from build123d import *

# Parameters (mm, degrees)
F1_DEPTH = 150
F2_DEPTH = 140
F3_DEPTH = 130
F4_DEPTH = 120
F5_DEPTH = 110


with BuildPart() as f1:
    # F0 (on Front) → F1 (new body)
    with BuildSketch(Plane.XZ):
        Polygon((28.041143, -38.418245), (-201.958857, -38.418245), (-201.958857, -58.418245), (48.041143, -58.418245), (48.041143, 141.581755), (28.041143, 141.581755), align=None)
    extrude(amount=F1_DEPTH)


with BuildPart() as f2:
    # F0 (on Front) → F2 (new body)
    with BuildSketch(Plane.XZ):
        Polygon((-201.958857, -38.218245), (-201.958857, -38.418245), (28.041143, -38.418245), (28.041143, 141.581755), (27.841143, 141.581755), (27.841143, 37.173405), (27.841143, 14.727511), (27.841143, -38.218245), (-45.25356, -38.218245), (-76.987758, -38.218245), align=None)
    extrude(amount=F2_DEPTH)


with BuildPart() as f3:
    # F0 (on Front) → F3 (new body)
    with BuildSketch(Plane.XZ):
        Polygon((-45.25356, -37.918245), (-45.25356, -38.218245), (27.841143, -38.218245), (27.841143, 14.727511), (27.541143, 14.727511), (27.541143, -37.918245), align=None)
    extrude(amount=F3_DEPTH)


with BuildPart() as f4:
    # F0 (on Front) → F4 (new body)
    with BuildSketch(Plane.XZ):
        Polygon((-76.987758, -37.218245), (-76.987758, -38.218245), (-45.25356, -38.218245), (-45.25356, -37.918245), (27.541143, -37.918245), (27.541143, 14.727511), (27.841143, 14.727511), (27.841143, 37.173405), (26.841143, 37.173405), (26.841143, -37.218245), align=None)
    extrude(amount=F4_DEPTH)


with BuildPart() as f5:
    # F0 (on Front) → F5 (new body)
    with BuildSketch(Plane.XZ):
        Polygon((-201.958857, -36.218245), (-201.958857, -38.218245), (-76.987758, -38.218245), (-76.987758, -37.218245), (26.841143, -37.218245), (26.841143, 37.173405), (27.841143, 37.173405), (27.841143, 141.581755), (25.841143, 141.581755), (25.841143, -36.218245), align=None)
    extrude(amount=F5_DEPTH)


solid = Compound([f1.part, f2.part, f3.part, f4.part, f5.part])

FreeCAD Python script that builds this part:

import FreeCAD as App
import Part
import Sketcher

V = App.Vector


def add_polygon(sketch, points):
    """Adds a closed chain of lines whose ends are joined by coincident constraints."""
    first, n = sketch.GeometryCount, len(points)
    for a, b in zip(points, points[1:] + points[:1]):
        sketch.addGeometry(Part.LineSegment(App.Vector(*a, 0), App.Vector(*b, 0)), False)
    for i in range(n):
        sketch.addConstraint(Sketcher.Constraint("Coincident", first + i, 2, first + (i + 1) % n, 1))

doc = App.newDocument("Part")
params = doc.addObject("Spreadsheet::Sheet", "Params")
for row, (alias, value) in enumerate([
    ("sketch1_width", "230 mm"),
    ("sketch1_width2", "250 mm"),
    ("sketch1_height", "200 mm"),
    ("pad1_length", "150 mm"),
    ("sketch2_width", "230 mm"),
    ("sketch2_height", "180 mm"),
    ("sketch2_width2", "0.2 mm"),
    ("pad2_length", "140 mm"),
    ("sketch3_width", "0.3 mm"),
    ("pad3_length", "130 mm"),
    ("sketch4_width", "1 mm"),
    ("sketch4_width2", "0.3 mm"),
    ("pad4_length", "120 mm"),
    ("sketch5_width", "1 mm"),
    ("sketch5_width2", "2 mm"),
    ("sketch5_width3", "227.8 mm"),
    ("sketch5_height", "177.8 mm"),
    ("pad5_length", "110 mm"),
], start=1):
    params.set(f"A{row}", alias)
    params.set(f"B{row}", "=" + value)
    params.setAlias(f"B{row}", alias)

body = doc.addObject("PartDesign::Body", "Body")

sketch1 = body.newObject("Sketcher::SketchObject", "Sketch")
sketch1.AttachmentSupport = (doc.getObject("XZ_Plane"), [""])
sketch1.MapMode = "FlatFace"
add_polygon(sketch1, [(28, -38), (-202, -38), (-202, -58), (48, -58), (48, 142), (28, 142)])
sketch1.addConstraint([
    Sketcher.Constraint("Horizontal", 0),
    Sketcher.Constraint("Vertical", 1),
    Sketcher.Constraint("Horizontal", 2),
    Sketcher.Constraint("Vertical", 3),
    Sketcher.Constraint("Horizontal", 4),
    Sketcher.Constraint("Vertical", 5),
    Sketcher.Constraint("Equal", 4, 1),
    Sketcher.Constraint("DistanceX", 0, 2, 0, 1, 230.0),
    Sketcher.Constraint("DistanceX", 2, 1, 2, 2, 250.0),
    Sketcher.Constraint("DistanceY", 3, 1, 3, 2, 200.0),
    Sketcher.Constraint("DistanceX", 0, 2, -1, 1, 201.958857),
    Sketcher.Constraint("DistanceY", 0, 2, -1, 1, 38.418245),
])
sketch1.setExpression("Constraints[13]", "Params.sketch1_width")
sketch1.setExpression("Constraints[14]", "Params.sketch1_width2")
sketch1.setExpression("Constraints[15]", "Params.sketch1_height")
pad1 = body.newObject("PartDesign::Pad", "Pad")
pad1.Profile = sketch1
pad1.setExpression("Length", "Params.pad1_length")
body2 = doc.addObject("PartDesign::Body", "Body001")

sketch2 = body2.newObject("Sketcher::SketchObject", "Sketch001")
sketch2.AttachmentSupport = (doc.getObject("XZ_Plane001"), [""])
sketch2.MapMode = "FlatFace"
add_polygon(sketch2, [(-201.96, -38.22), (-201.96, -38.42), (28.04, -38.42), (28.04, 141.58), (27.84, 141.58), (27.84, -38.22)])
sketch2.addConstraint([
    Sketcher.Constraint("Vertical", 0),
    Sketcher.Constraint("Horizontal", 1),
    Sketcher.Constraint("Vertical", 2),
    Sketcher.Constraint("Horizontal", 3),
    Sketcher.Constraint("Vertical", 4),
    Sketcher.Constraint("Horizontal", 5),
    Sketcher.Constraint("Equal", 3, 0),
    Sketcher.Constraint("DistanceX", 1, 1, 1, 2, 230.0),
    Sketcher.Constraint("DistanceY", 2, 1, 2, 2, 180.0),
    Sketcher.Constraint("DistanceX", 3, 2, 3, 1, 0.2),
    Sketcher.Constraint("DistanceX", 0, 2, -1, 1, 201.958857),
    Sketcher.Constraint("DistanceY", 0, 2, -1, 1, 38.418245),
])
sketch2.setExpression("Constraints[13]", "Params.sketch2_width")
sketch2.setExpression("Constraints[14]", "Params.sketch2_height")
sketch2.setExpression("Constraints[15]", "Params.sketch2_width2")
pad2 = body2.newObject("PartDesign::Pad", "Pad001")
pad2.Profile = sketch2
pad2.setExpression("Length", "Params.pad2_length")
body3 = doc.addObject("PartDesign::Body", "Body002")

sketch3 = body3.newObject("Sketcher::SketchObject", "Sketch002")
sketch3.AttachmentSupport = (doc.getObject("XZ_Plane002"), [""])
sketch3.MapMode = "FlatFace"
add_polygon(sketch3, [(-45.25, -37.92), (-45.25, -38.22), (27.84, -38.22), (27.84, 14.73), (27.54, 14.73), (27.54, -37.92)])
sketch3.addConstraint([
    Sketcher.Constraint("Vertical", 0),
    Sketcher.Constraint("Horizontal", 1),
    Sketcher.Constraint("Vertical", 2),
    Sketcher.Constraint("Horizontal", 3),
    Sketcher.Constraint("Vertical", 4),
    Sketcher.Constraint("Horizontal", 5),
    Sketcher.Constraint("Equal", 3, 0),
    Sketcher.Constraint("DistanceX", 3, 2, 3, 1, 0.3),
    Sketcher.Constraint("DistanceX", 1, 1, 1, 2, 73.094703),
    Sketcher.Constraint("DistanceY", 2, 1, 2, 2, 52.945756),
    Sketcher.Constraint("DistanceX", 0, 2, -1, 1, 45.25356),
    Sketcher.Constraint("DistanceY", -1, 1, 2, 2, 14.727511),
])
sketch3.setExpression("Constraints[13]", "Params.sketch3_width")
pad3 = body3.newObject("PartDesign::Pad", "Pad002")
pad3.Profile = sketch3
pad3.setExpression("Length", "Params.pad3_length")
body4 = doc.addObject("PartDesign::Body", "Body003")

sketch4 = body4.newObject("Sketcher::SketchObject", "Sketch003")
sketch4.AttachmentSupport = (doc.getObject("XZ_Plane003"), [""])
sketch4.MapMode = "FlatFace"
add_polygon(sketch4, [(-76.99, -37.22), (-76.99, -38.22), (-45.25, -38.22), (-45.25, -37.92), (27.54, -37.92), (27.54, 14.73), (27.84, 14.73), (27.84, 37.17), (26.84, 37.17), (26.84, -37.22)])
sketch4.addConstraint([
    Sketcher.Constraint("Vertical", 0),
    Sketcher.Constraint("Horizontal", 1),
    Sketcher.Constraint("Vertical", 2),
    Sketcher.Constraint("Horizontal", 3),
    Sketcher.Constraint("Vertical", 4),
    Sketcher.Constraint("Horizontal", 5),
    Sketcher.Constraint("Vertical", 6),
    Sketcher.Constraint("Horizontal", 7),
    Sketcher.Constraint("Vertical", 8),
    Sketcher.Constraint("Horizontal", 9),
    Sketcher.Constraint("Equal", 7, 0),
    Sketcher.Constraint("Equal", 5, 2),
    Sketcher.Constraint("DistanceX", 7, 2, 7, 1, 1.0),
    Sketcher.Constraint("DistanceX", 5, 1, 5, 2, 0.3),
    Sketcher.Constraint("DistanceX", 9, 2, 9, 1, 103.828901),
    Sketcher.Constraint("DistanceY", 8, 2, 8, 1, 74.39165),
    Sketcher.Constraint("DistanceX", 1, 1, 1, 2, 31.734198),
    Sketcher.Constraint("DistanceY", 4, 1, 4, 2, 52.645756),
    Sketcher.Constraint("DistanceX", 0, 2, -1, 1, 76.987758),
    Sketcher.Constraint("DistanceY", -1, 1, 4, 2, 14.727511),
])
sketch4.setExpression("Constraints[22]", "Params.sketch4_width")
sketch4.setExpression("Constraints[23]", "Params.sketch4_width2")
pad4 = body4.newObject("PartDesign::Pad", "Pad003")
pad4.Profile = sketch4
pad4.setExpression("Length", "Params.pad4_length")
body5 = doc.addObject("PartDesign::Body", "Body004")

sketch5 = body5.newObject("Sketcher::SketchObject", "Sketch004")
sketch5.AttachmentSupport = (doc.getObject("XZ_Plane004"), [""])
sketch5.MapMode = "FlatFace"
add_polygon(sketch5, [(-202, -36.2), (-202, -38.2), (-77, -38.2), (-77, -37.2), (26.8, -37.2), (26.8, 37.2), (27.8, 37.2), (27.8, 141.6), (25.8, 141.6), (25.8, -36.2)])
sketch5.addConstraint([
    Sketcher.Constraint("Vertical", 0),
    Sketcher.Constraint("Horizontal", 1),
    Sketcher.Constraint("Vertical", 2),
    Sketcher.Constraint("Horizontal", 3),
    Sketcher.Constraint("Vertical", 4),
    Sketcher.Constraint("Horizontal", 5),
    Sketcher.Constraint("Vertical", 6),
    Sketcher.Constraint("Horizontal", 7),
    Sketcher.Constraint("Vertical", 8),
    Sketcher.Constraint("Horizontal", 9),
    Sketcher.Constraint("Equal", 7, 0),
    Sketcher.Constraint("Equal", 5, 2),
    Sketcher.Constraint("DistanceX", 5, 1, 5, 2, 1.0),
    Sketcher.Constraint("DistanceX", 7, 2, 7, 1, 2.0),
    Sketcher.Constraint("DistanceX", 9, 2, 9, 1, 227.8),
    Sketcher.Constraint("DistanceY", 8, 2, 8, 1, 177.8),
    Sketcher.Constraint("DistanceX", 1, 1, 1, 2, 124.971099),
    Sketcher.Constraint("DistanceY", 4, 1, 4, 2, 74.39165),
    Sketcher.Constraint("DistanceX", 1, 2, -1, 1, 76.987758),
    Sketcher.Constraint("DistanceY", 0, 2, -1, 1, 38.218245),
])
sketch5.setExpression("Constraints[22]", "Params.sketch5_width")
sketch5.setExpression("Constraints[23]", "Params.sketch5_width2")
sketch5.setExpression("Constraints[24]", "Params.sketch5_width3")
sketch5.setExpression("Constraints[25]", "Params.sketch5_height")
pad5 = body5.newObject("PartDesign::Pad", "Pad004")
pad5.Profile = sketch5
pad5.setExpression("Length", "Params.pad5_length")

doc.recompute()
